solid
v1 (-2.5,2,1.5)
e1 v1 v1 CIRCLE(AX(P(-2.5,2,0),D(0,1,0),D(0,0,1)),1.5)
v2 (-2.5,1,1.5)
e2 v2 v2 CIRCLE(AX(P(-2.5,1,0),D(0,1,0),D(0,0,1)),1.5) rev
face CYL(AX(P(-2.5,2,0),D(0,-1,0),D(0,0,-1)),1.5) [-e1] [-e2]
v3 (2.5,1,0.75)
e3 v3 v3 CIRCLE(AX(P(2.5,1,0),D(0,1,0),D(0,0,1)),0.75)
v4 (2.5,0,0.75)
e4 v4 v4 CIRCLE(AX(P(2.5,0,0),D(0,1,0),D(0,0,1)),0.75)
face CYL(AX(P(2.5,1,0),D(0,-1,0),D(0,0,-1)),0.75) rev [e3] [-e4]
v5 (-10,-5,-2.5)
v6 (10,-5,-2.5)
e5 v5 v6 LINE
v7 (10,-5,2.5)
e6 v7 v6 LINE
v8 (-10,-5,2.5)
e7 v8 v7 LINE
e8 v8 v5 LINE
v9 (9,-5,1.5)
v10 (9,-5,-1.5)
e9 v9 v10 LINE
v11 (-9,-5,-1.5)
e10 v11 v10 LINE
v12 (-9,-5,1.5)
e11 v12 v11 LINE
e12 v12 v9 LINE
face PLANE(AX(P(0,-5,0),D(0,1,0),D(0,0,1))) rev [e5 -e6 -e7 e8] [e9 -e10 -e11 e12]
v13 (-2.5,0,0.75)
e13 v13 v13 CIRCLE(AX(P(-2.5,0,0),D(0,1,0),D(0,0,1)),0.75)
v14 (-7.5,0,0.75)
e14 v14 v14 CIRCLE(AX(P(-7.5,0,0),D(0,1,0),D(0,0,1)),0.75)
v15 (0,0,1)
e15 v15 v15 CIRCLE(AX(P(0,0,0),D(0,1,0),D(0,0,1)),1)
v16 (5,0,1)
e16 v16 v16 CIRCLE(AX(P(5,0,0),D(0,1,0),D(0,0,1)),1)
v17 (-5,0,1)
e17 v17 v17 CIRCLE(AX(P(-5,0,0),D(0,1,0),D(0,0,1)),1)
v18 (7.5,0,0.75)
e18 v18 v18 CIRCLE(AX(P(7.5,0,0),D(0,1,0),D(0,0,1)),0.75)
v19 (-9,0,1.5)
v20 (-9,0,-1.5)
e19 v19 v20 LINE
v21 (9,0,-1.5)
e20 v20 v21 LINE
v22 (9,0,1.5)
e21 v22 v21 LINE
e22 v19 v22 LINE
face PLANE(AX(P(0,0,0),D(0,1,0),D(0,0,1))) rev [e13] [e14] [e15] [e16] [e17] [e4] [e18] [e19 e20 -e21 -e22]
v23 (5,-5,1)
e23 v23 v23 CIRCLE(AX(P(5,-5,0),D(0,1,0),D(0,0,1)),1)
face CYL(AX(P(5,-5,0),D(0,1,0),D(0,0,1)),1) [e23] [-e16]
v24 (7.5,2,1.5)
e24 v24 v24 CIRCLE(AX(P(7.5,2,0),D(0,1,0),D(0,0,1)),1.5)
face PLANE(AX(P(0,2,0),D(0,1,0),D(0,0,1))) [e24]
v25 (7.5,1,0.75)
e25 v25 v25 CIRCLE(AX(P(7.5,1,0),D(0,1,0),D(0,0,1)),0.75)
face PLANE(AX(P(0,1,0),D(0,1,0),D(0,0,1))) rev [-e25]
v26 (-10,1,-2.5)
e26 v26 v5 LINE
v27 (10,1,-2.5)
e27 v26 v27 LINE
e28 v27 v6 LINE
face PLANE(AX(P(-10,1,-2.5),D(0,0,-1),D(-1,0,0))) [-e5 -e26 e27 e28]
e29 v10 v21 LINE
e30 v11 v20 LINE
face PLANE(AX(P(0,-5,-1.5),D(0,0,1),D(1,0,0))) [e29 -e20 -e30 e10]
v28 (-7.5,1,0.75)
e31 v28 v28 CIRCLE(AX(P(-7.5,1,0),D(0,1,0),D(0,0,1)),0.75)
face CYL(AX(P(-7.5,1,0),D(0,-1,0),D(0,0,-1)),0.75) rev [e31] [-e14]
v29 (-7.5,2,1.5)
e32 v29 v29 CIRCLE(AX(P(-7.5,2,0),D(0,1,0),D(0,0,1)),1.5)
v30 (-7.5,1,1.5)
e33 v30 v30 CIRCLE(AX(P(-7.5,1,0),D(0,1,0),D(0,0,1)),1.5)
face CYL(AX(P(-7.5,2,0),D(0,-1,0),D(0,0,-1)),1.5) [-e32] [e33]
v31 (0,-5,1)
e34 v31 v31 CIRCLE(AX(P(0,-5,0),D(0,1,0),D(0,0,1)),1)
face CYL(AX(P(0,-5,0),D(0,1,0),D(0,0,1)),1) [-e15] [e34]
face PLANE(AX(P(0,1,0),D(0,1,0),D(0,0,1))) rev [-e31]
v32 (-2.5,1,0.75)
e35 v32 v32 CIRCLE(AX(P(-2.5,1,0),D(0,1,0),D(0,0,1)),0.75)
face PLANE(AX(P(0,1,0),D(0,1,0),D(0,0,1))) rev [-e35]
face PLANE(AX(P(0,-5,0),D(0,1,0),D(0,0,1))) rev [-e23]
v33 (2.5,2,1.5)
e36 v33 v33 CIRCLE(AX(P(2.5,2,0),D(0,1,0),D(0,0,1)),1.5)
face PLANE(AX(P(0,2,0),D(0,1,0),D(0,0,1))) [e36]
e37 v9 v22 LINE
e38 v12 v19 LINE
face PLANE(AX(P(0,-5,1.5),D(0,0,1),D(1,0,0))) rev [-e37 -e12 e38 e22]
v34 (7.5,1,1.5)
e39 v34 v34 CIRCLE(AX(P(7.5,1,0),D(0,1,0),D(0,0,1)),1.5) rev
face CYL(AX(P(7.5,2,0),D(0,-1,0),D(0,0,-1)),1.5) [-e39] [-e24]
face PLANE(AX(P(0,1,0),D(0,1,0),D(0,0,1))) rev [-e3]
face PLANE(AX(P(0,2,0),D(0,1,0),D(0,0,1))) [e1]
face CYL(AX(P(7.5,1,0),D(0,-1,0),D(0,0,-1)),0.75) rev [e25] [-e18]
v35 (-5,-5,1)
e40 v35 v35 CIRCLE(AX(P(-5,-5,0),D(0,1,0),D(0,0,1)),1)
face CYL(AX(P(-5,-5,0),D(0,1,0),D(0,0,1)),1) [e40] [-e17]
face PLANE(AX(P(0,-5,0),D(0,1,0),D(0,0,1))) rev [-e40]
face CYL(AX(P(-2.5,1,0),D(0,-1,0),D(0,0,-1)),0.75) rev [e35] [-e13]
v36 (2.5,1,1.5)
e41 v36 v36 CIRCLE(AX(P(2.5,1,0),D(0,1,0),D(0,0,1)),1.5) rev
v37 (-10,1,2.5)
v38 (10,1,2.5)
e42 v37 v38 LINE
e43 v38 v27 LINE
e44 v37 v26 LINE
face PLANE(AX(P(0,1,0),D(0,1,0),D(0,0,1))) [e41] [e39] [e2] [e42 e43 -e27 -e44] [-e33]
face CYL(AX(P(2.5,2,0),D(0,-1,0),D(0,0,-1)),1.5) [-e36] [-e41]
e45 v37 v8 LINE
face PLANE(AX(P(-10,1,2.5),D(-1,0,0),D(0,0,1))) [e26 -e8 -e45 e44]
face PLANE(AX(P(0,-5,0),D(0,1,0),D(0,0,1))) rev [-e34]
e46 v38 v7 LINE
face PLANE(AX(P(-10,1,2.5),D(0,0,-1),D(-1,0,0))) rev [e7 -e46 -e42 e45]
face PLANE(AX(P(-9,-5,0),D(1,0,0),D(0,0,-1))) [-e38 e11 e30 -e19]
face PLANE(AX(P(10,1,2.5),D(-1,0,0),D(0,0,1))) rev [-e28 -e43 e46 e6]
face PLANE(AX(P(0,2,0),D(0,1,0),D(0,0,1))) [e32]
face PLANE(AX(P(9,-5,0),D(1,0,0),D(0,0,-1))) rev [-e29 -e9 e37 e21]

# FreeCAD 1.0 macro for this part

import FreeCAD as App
import Part
import Sketcher
Q = App.Units.Quantity


def add_polygon(sketch, points):
    """Adds a closed chain of lines whose ends are joined by coincident constraints."""
    first, n = sketch.GeometryCount, len(points)
    for a, b in zip(points, points[1:] + points[:1]):
        sketch.addGeometry(Part.LineSegment(App.Vector(*a, 0), App.Vector(*b, 0)), False)
    for i in range(n):
        sketch.addConstraint(Sketcher.Constraint("Coincident", first + i, 2, first + (i + 1) % n, 1))

doc = App.newDocument("Part")
params = doc.addObject("Spreadsheet::Sheet", "Params")
for row, (alias, value) in enumerate([
    ("sketch1_diameter", "3 mm"),
    ("pad1_length", "2 mm"),
    ("sketch2_diameter", "3 mm"),
    ("pad2_length", "2 mm"),
    ("sketch3_diameter", "3 mm"),
    ("pad3_length", "2 mm"),
    ("sketch4_diameter", "3 mm"),
    ("pad4_length", "2 mm"),
    ("sketch5_width", "20 mm"),
    ("sketch5_height", "5 mm"),
    ("pad5_length", "1 mm"),
    ("sketch6_diameter", "1.5 mm"),
    ("pocket1_length", "1 mm"),
    ("sketch7_diameter", "2 mm"),
    ("sketch7_width", "20 mm"),
    ("sketch7_width2", "18 mm"),
    ("sketch7_height", "5 mm"),
    ("sketch7_height2", "3 mm"),
    ("pad6_length", "5 mm"),
], start=1):
    params.set(f"A{row}", alias)
    params.set(f"B{row}", "=" + value)
    params.setAlias(f"B{row}", alias)

body = doc.addObject("PartDesign::Body", "Body")

# Sketch on XZ plane
sketch1 = body.newObject("Sketcher::SketchObject", "Sketch")
sketch1.AttachmentSupport = (doc.getObject("XZ_Plane"), [""])
sketch1.MapMode = "FlatFace"
sketch1.addGeometry(Part.Circle(App.Vector(-7.5, 0, 0), App.Vector(0, 0, 1), 1.5), False)
sketch1.addConstraint([
    Sketcher.Constraint("PointOnObject", 0, 3, -1),
    Sketcher.Constraint("Diameter", 0, Q("3 mm")),
    Sketcher.Constraint("DistanceX", 0, 3, -1, 1, Q("7.5 mm")),
])
sketch1.setExpression("Constraints[1]", "Params.sketch1_diameter")
pad1 = body.newObject("PartDesign::Pad", "Pad")
pad1.Profile = sketch1
pad1.setExpression("Length", "Params.pad1_length")
pad1.Reversed = True
body2 = doc.addObject("PartDesign::Body", "Body001")

# Sketch on XZ plane
sketch2 = body2.newObject("Sketcher::SketchObject", "Sketch001")
sketch2.AttachmentSupport = (doc.getObject("XZ_Plane001"), [""])
sketch2.MapMode = "FlatFace"
sketch2.addGeometry(Part.Circle(App.Vector(-2.5, 0, 0), App.Vector(0, 0, 1), 1.5), False)
sketch2.addConstraint([
    Sketcher.Constraint("PointOnObject", 0, 3, -1),
    Sketcher.Constraint("Diameter", 0, Q("3 mm")),
    Sketcher.Constraint("DistanceX", 0, 3, -1, 1, Q("2.5 mm")),
])
sketch2.setExpression("Constraints[1]", "Params.sketch2_diameter")
pad2 = body2.newObject("PartDesign::Pad", "Pad001")
pad2.Profile = sketch2
pad2.setExpression("Length", "Params.pad2_length")
pad2.Reversed = True
body3 = doc.addObject("PartDesign::Body", "Body002")

# Sketch on XZ plane
sketch3 = body3.newObject("Sketcher::SketchObject", "Sketch002")
sketch3.AttachmentSupport = (doc.getObject("XZ_Plane002"), [""])
sketch3.MapMode = "FlatFace"
sketch3.addGeometry(Part.Circle(App.Vector(2.5, 0, 0), App.Vector(0, 0, 1), 1.5), False)
sketch3.addConstraint([
    Sketcher.Constraint("PointOnObject", 0, 3, -1),
    Sketcher.Constraint("Diameter", 0, Q("3 mm")),
    Sketcher.Constraint("DistanceX", -1, 1, 0, 3, Q("2.5 mm")),
])
sketch3.setExpression("Constraints[1]", "Params.sketch3_diameter")
pad3 = body3.newObject("PartDesign::Pad", "Pad002")
pad3.Profile = sketch3
pad3.setExpression("Length", "Params.pad3_length")
pad3.Reversed = True
body4 = doc.addObject("PartDesign::Body", "Body003")

# Sketch on XZ plane
sketch4 = body4.newObject("Sketcher::SketchObject", "Sketch003")
sketch4.AttachmentSupport = (doc.getObject("XZ_Plane003"), [""])
sketch4.MapMode = "FlatFace"
sketch4.addGeometry(Part.Circle(App.Vector(7.5, 0, 0), App.Vector(0, 0, 1), 1.5), False)
sketch4.addConstraint([
    Sketcher.Constraint("PointOnObject", 0, 3, -1),
    Sketcher.Constraint("Diameter", 0, Q("3 mm")),
    Sketcher.Constraint("DistanceX", -1, 1, 0, 3, Q("7.5 mm")),
])
sketch4.setExpression("Constraints[1]", "Params.sketch4_diameter")
pad4 = body4.newObject("PartDesign::Pad", "Pad003")
pad4.Profile = sketch4
pad4.setExpression("Length", "Params.pad4_length")
pad4.Reversed = True
body.AllowCompound = True
doc.recompute()

boolean = body.newObject("PartDesign::Boolean", "Boolean")
boolean.Type = "Fuse"
boolean.addObjects([body2])
doc.recompute()

boolean2 = body.newObject("PartDesign::Boolean", "Boolean001")
boolean2.Type = "Fuse"
boolean2.addObjects([body3])
doc.recompute()

boolean3 = body.newObject("PartDesign::Boolean", "Boolean002")
boolean3.Type = "Fuse"
boolean3.addObjects([body4])

# Sketch on XZ plane
sketch5 = body.newObject("Sketcher::SketchObject", "Sketch004")
sketch5.AttachmentSupport = (doc.getObject("XZ_Plane"), [""])
sketch5.MapMode = "FlatFace"
add_polygon(sketch5, [(-10, -2.5), (-10, 2.5), (10, 2.5), (10, -2.5)])  # lines 0-3
sketch5.addConstraint([
    Sketcher.Constraint("Vertical", 0),
    Sketcher.Constraint("Horizontal", 1),
    Sketcher.Constraint("Vertical", 2),
    Sketcher.Constraint("Horizontal", 3),
    Sketcher.Constraint("Symmetric", 0, 2, 2, 2, -1, 1),
    Sketcher.Constraint("DistanceX", 1, 1, 1, 2, Q("20 mm")),
    Sketcher.Constraint("DistanceY", 0, 1, 0, 2, Q("5 mm")),
])
sketch5.setExpression("Constraints[9]", "Params.sketch5_width")
sketch5.setExpression("Constraints[10]", "Params.sketch5_height")
pad5 = body.newObject("PartDesign::Pad", "Pad004")
pad5.Profile = sketch5
pad5.setExpression("Length", "Params.pad5_length")
pad5.Reversed = True

# Sketch on XZ plane
sketch6 = body.newObject("Sketcher::SketchObject", "Sketch005")
sketch6.AttachmentSupport = (doc.getObject("XZ_Plane"), [""])
sketch6.MapMode = "FlatFace"
sketch6.addGeometry([
    Part.Circle(App.Vector(-7.5, 0, 0), App.Vector(0, 0, 1), 0.75),
    Part.Circle(App.Vector(-2.5, 0, 0), App.Vector(0, 0, 1), 0.75),
    Part.Circle(App.Vector(2.5, 0, 0), App.Vector(0, 0, 1), 0.75),
    Part.Circle(App.Vector(7.5, 0, 0), App.Vector(0, 0, 1), 0.75),
], False)
sketch6.addConstraint([
    Sketcher.Constraint("Equal", 0, 1),
    Sketcher.Constraint("Equal", 1, 2),
    Sketcher.Constraint("Equal", 2, 3),
    Sketcher.Constraint("Symmetric", 1, 3, 2, 3, -1, 1),
    Sketcher.Constraint("Symmetric", 0, 3, 3, 3, -1, 1),
    Sketcher.Constraint("PointOnObject", 0, 3, -1),
    Sketcher.Constraint("PointOnObject", 1, 3, -1),
    Sketcher.Constraint("Diameter", 0, Q("1.5 mm")),
    Sketcher.Constraint("DistanceX", 0, 3, 1, 3, Q("5 mm")),
    Sketcher.Constraint("DistanceX", 1, 3, 2, 3, Q("5 mm")),
])
sketch6.setExpression("Constraints[7]", "Params.sketch6_diameter")
pocket1 = body.newObject("PartDesign::Pocket", "Pocket")
pocket1.Profile = sketch6
pocket1.setExpression("Length", "Params.pocket1_length")

# Sketch on XZ plane
sketch7 = body.newObject("Sketcher::SketchObject", "Sketch006")
sketch7.AttachmentSupport = (doc.getObject("XZ_Plane"), [""])
sketch7.MapMode = "FlatFace"
add_polygon(sketch7, [(-10, -2.5), (-10, 2.5), (10, 2.5), (10, -2.5)])  # lines 0-3
add_polygon(sketch7, [(9, 1.5), (-9, 1.5), (-9, -1.5), (9, -1.5)])  # lines 4-7
sketch7.addGeometry(Part.Circle(App.Vector(-5, 0, 0), App.Vector(0, 0, 1), 1), False)  # 8
sketch7.addGeometry(Part.Circle(App.Vector(0, 0, 0), App.Vector(0, 0, 1), 1), False)  # 9
sketch7.addGeometry(Part.Circle(App.Vector(5, 0, 0), App.Vector(0, 0, 1), 1), False)  # 10
sketch7.addConstraint([
    Sketcher.Constraint("Vertical", 0),
    Sketcher.Constraint("Horizontal", 1),
    Sketcher.Constraint("Vertical", 2),
    Sketcher.Constraint("Horizontal", 3),
    Sketcher.Constraint("Horizontal", 4),
    Sketcher.Constraint("Vertical", 5),
    Sketcher.Constraint("Horizontal", 6),
    Sketcher.Constraint("Vertical", 7),
    Sketcher.Constraint("Coincident", 9, 3, -1, 1),
    Sketcher.Constraint("Equal", 8, 9),
    Sketcher.Constraint("Equal", 9, 10),
    Sketcher.Constraint("Symmetric", 8, 3, 10, 3, -1, 1),
    Sketcher.Constraint("Symmetric", 0, 2, 2, 2, -1, 1),
    Sketcher.Constraint("Symmetric", 4, 2, 6, 2, -1, 1),
    Sketcher.Constraint("PointOnObject", 8, 3, -1),
    Sketcher.Constraint("Diameter", 8, Q("2 mm")),
    Sketcher.Constraint("DistanceX", 1, 1, 1, 2, Q("20 mm")),
    Sketcher.Constraint("DistanceX", 4, 2, 4, 1, Q("18 mm")),
    Sketcher.Constraint("DistanceY", 0, 1, 0, 2, Q("5 mm")),
    Sketcher.Constraint("DistanceY", 5, 2, 5, 1, Q("3 mm")),
    Sketcher.Constraint("DistanceX", 8, 3, -1, 1, Q("5 mm")),
])
sketch7.setExpression("Constraints[23]", "Params.sketch7_diameter")
sketch7.setExpression("Constraints[24]", "Params.sketch7_width")
sketch7.setExpression("Constraints[25]", "Params.sketch7_width2")
sketch7.setExpression("Constraints[26]", "Params.sketch7_height")
sketch7.setExpression("Constraints[27]", "Params.sketch7_height2")
pad6 = body.newObject("PartDesign::Pad", "Pad005")
pad6.Profile = sketch7
pad6.setExpression("Length", "Params.pad6_length")

doc.recompute()
